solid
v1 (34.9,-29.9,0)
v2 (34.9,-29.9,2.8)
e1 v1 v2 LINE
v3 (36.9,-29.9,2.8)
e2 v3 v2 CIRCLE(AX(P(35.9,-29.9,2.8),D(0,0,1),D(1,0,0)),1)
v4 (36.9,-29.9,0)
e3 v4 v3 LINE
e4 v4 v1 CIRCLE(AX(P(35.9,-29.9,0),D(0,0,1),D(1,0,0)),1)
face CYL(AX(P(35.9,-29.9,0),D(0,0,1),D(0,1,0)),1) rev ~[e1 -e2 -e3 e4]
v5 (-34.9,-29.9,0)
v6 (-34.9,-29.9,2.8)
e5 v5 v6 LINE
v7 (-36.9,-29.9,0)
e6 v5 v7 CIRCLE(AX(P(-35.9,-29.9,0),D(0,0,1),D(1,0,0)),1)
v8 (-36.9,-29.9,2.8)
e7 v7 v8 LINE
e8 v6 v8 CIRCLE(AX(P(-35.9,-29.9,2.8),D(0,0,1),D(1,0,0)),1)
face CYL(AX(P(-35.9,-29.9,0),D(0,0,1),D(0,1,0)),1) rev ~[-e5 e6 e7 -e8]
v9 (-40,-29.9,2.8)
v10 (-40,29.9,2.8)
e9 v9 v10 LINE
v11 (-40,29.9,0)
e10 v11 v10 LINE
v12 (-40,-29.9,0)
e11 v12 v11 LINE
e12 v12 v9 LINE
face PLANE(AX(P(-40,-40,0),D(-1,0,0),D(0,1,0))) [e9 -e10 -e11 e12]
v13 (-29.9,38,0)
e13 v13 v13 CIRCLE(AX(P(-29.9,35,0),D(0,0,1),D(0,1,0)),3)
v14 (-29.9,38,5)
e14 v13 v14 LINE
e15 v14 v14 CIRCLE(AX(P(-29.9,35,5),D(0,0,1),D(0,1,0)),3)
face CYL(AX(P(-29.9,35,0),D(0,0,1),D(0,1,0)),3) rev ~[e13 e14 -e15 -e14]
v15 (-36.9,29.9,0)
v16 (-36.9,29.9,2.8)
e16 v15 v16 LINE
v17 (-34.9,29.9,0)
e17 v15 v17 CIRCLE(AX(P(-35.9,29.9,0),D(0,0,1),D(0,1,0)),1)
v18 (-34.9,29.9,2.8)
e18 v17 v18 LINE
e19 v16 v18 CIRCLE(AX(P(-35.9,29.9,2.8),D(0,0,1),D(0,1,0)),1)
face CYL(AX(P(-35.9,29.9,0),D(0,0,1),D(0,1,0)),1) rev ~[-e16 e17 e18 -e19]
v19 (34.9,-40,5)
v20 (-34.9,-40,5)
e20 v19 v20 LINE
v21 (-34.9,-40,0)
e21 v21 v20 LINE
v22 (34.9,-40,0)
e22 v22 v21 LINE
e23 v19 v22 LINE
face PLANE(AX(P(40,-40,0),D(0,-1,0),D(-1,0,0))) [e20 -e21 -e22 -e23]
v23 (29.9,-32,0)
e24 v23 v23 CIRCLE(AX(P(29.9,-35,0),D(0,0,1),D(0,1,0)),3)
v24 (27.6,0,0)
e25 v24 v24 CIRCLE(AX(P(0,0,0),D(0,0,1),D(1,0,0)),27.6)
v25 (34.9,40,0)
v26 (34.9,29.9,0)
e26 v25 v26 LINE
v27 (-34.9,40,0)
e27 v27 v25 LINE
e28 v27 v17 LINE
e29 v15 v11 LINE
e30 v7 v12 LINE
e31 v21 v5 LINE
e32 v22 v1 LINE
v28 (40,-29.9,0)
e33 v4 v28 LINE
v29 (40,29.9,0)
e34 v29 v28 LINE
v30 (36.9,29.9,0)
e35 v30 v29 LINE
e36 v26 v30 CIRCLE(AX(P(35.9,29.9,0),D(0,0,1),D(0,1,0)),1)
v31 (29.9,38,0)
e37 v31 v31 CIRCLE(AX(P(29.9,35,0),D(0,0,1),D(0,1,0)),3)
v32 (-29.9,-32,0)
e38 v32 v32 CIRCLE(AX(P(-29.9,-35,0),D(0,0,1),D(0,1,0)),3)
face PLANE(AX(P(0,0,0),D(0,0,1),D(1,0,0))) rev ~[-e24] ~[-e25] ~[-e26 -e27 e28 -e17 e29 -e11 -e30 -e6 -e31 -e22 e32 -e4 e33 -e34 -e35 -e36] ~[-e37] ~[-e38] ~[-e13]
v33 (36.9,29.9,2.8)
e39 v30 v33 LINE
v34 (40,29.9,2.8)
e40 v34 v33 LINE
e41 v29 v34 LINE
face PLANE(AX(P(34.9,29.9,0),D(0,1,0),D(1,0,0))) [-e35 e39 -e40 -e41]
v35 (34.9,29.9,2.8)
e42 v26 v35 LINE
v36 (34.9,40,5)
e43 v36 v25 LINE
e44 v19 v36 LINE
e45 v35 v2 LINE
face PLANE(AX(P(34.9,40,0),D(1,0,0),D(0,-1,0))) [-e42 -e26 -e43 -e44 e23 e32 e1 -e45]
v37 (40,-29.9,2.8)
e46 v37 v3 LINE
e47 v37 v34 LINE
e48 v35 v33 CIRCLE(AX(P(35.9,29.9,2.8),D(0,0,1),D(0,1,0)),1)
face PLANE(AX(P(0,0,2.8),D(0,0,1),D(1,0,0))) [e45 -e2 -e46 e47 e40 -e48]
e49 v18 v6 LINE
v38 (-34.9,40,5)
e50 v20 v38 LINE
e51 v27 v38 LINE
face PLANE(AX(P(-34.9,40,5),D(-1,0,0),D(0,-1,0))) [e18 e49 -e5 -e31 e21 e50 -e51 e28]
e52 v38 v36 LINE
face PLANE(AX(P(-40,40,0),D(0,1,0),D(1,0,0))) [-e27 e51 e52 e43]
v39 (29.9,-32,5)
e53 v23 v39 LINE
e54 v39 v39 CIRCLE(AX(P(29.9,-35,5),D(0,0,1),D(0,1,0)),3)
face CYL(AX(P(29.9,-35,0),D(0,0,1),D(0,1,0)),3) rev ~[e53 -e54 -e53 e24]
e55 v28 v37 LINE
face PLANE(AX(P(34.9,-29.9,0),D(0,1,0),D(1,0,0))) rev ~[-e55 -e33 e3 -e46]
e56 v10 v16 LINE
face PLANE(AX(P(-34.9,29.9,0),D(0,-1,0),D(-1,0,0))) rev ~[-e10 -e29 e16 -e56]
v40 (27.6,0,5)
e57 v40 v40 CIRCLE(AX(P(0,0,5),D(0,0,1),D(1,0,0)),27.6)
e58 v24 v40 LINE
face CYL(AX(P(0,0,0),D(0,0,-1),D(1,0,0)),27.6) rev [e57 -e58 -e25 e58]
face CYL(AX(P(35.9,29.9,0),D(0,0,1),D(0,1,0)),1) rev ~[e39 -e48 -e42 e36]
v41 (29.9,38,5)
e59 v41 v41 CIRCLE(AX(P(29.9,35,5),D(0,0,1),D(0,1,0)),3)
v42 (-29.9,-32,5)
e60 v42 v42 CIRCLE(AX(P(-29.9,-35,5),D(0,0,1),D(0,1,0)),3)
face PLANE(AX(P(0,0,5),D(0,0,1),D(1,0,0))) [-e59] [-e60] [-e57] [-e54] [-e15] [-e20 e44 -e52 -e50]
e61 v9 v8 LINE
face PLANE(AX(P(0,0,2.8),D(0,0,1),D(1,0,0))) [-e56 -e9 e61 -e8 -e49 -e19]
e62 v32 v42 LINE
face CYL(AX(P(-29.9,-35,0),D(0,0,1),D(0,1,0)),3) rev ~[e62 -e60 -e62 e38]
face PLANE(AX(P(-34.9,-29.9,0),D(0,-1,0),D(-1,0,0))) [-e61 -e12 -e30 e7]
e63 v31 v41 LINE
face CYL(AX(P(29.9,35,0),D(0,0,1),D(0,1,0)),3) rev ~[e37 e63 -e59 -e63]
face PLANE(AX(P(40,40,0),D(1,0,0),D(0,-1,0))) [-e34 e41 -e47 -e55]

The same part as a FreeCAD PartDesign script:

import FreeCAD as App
import Part
import Sketcher

V = App.Vector


def add_polygon(sketch, points):
    """Adds a closed chain of lines whose ends are joined by coincident constraints."""
    first, n = sketch.GeometryCount, len(points)
    for a, b in zip(points, points[1:] + points[:1]):
        sketch.addGeometry(Part.LineSegment(App.Vector(*a, 0), App.Vector(*b, 0)), False)
    for i in range(n):
        sketch.addConstraint(Sketcher.Constraint("Coincident", first + i, 2, first + (i + 1) % n, 1))

doc = App.newDocument("Part")
body = doc.addObject("PartDesign::Body", "Body")

sketch1 = body.newObject("Sketcher::SketchObject", "Sketch")
sketch1.AttachmentSupport = (doc.getObject("XY_Plane"), [""])
sketch1.MapMode = "FlatFace"
add_polygon(sketch1, [(40, 40), (-40, 40), (-40, -40), (40, -40)])
sketch1.addGeometry(Part.Circle(V(0, 0, 0), V(0, 0, 1), 28), False)
sketch1.addConstraint(Sketcher.Constraint("Horizontal", 0))
sketch1.addConstraint(Sketcher.Constraint("Vertical", 1))
sketch1.addConstraint(Sketcher.Constraint("Horizontal", 2))
sketch1.addConstraint(Sketcher.Constraint("Vertical", 3))
sketch1.addConstraint(Sketcher.Constraint("Coincident", 4, 3, -1, 1))
sketch1.addConstraint(Sketcher.Constraint("Symmetric", 0, 2, 2, 2, -1, 1))
sketch1.addConstraint(Sketcher.Constraint("Equal", 2, 1))
sketch1.addConstraint(Sketcher.Constraint("Diameter", 4, 55.2))
sketch1.addConstraint(Sketcher.Constraint("DistanceX", 0, 2, 0, 1, 80.0))
pad1 = body.newObject("PartDesign::Pad", "Pad")
pad1.Profile = sketch1
pad1.Length = 5

sketch2 = body.newObject("Sketcher::SketchObject", "Sketch001")
sketch2.AttachmentSupport = (doc.getObject("XY_Plane"), [""])
sketch2.MapMode = "FlatFace"
sketch2.AttachmentOffset = App.Placement(V(0, 0, 5), App.Rotation())
add_polygon(sketch2, [(-40, -40), (-35, -40), (-35, 40), (-40, 40)])
add_polygon(sketch2, [(35, -40), (40, -40), (40, 40), (35, 40)])
sketch2.addConstraint(Sketcher.Constraint("Horizontal", 0))
sketch2.addConstraint(Sketcher.Constraint("Vertical", 1))
sketch2.addConstraint(Sketcher.Constraint("Horizontal", 2))
sketch2.addConstraint(Sketcher.Constraint("Vertical", 3))
sketch2.addConstraint(Sketcher.Constraint("Horizontal", 4))
sketch2.addConstraint(Sketcher.Constraint("Vertical", 5))
sketch2.addConstraint(Sketcher.Constraint("Horizontal", 6))
sketch2.addConstraint(Sketcher.Constraint("Vertical", 7))
sketch2.addConstraint(Sketcher.Constraint("Symmetric", 2, 2, 4, 2, -1, 1))
sketch2.addConstraint(Sketcher.Constraint("Symmetric", 0, 2, 6, 2, -1, 1))
sketch2.addConstraint(Sketcher.Constraint("Horizontal", 3, 2, 4, 2))
sketch2.addConstraint(Sketcher.Constraint("DistanceX", 0, 1, 0, 2, 5.1))
sketch2.addConstraint(Sketcher.Constraint("DistanceY", 1, 1, 1, 2, 80.0))
sketch2.addConstraint(Sketcher.Constraint("DistanceX", 2, 2, -1, 1, 40.0))
pocket1 = body.newObject("PartDesign::Pocket", "Pocket")
pocket1.Profile = sketch2
pocket1.Length = 2.2

sketch3 = body.newObject("Sketcher::SketchObject", "Sketch002")
sketch3.AttachmentSupport = (doc.getObject("XY_Plane"), [""])
sketch3.MapMode = "FlatFace"
add_polygon(sketch3, [(35, 40), (40, 40), (40, 30), (35, 30)])
add_polygon(sketch3, [(40, -30), (40, -40), (35, -40), (35, -30)])
add_polygon(sketch3, [(-40, 30), (-40, 40), (-35, 40), (-35, 30)])
add_polygon(sketch3, [(-35, -40), (-40, -40), (-40, -30), (-35, -30)])
sketch3.addConstraint(Sketcher.Constraint("Horizontal", 0))
sketch3.addConstraint(Sketcher.Constraint("Vertical", 1))
sketch3.addConstraint(Sketcher.Constraint("Horizontal", 2))
sketch3.addConstraint(Sketcher.Constraint("Vertical", 3))
sketch3.addConstraint(Sketcher.Constraint("Vertical", 4))
sketch3.addConstraint(Sketcher.Constraint("Horizontal", 5))
sketch3.addConstraint(Sketcher.Constraint("Vertical", 6))
sketch3.addConstraint(Sketcher.Constraint("Horizontal", 7))
sketch3.addConstraint(Sketcher.Constraint("Vertical", 8))
sketch3.addConstraint(Sketcher.Constraint("Horizontal", 9))
sketch3.addConstraint(Sketcher.Constraint("Vertical", 10))
sketch3.addConstraint(Sketcher.Constraint("Horizontal", 11))
sketch3.addConstraint(Sketcher.Constraint("Horizontal", 12))
sketch3.addConstraint(Sketcher.Constraint("Vertical", 13))
sketch3.addConstraint(Sketcher.Constraint("Horizontal", 14))
sketch3.addConstraint(Sketcher.Constraint("Vertical", 15))
sketch3.addConstraint(Sketcher.Constraint("Symmetric", 4, 2, 8, 2, -1, 1))
sketch3.addConstraint(Sketcher.Constraint("Symmetric", 6, 2, 10, 2, -1, 1))
sketch3.addConstraint(Sketcher.Constraint("Symmetric", 0, 2, 12, 2, -1, 1))
sketch3.addConstraint(Sketcher.Constraint("Symmetric", 2, 2, 14, 2, -1, 1))
sketch3.addConstraint(Sketcher.Constraint("Symmetric", 0, 2, 8, 2, -2))
sketch3.addConstraint(Sketcher.Constraint("Symmetric", 2, 2, 10, 2, -2))
sketch3.addConstraint(Sketcher.Constraint("DistanceX", 0, 1, 0, 2, 5.1))
sketch3.addConstraint(Sketcher.Constraint("DistanceY", 1, 2, 1, 1, 10.1))
sketch3.addConstraint(Sketcher.Constraint("DistanceX", -1, 1, 0, 2, 40.0))
sketch3.addConstraint(Sketcher.Constraint("DistanceY", -1, 1, 0, 2, 40.0))
pocket2 = body.newObject("PartDesign::Pocket", "Pocket001")
pocket2.Profile = sketch3
pocket2.Type = "ThroughAll"
pocket2.Reversed = True

sketch4 = body.newObject("Sketcher::SketchObject", "Sketch003")
sketch4.AttachmentSupport = (doc.getObject("XY_Plane"), [""])
sketch4.MapMode = "FlatFace"
sketch4.addGeometry(Part.Circle(V(35.9, 29.9, 0), V(0, 0, 1), 1), False)
sketch4.addGeometry(Part.Circle(V(35.9, -29.9, 0), V(0, 0, 1), 1), False)
sketch4.addGeometry(Part.Circle(V(-35.9, -29.9, 0), V(0, 0, 1), 1), False)
sketch4.addGeometry(Part.Circle(V(-35.9, 29.9, 0), V(0, 0, 1), 1), False)
sketch4.addConstraint(Sketcher.Constraint("Equal", 0, 1))
sketch4.addConstraint(Sketcher.Constraint("Equal", 1, 2))
sketch4.addConstraint(Sketcher.Constraint("Equal", 2, 3))
sketch4.addConstraint(Sketcher.Constraint("Symmetric", 0, 3, 2, 3, -1, 1))
sketch4.addConstraint(Sketcher.Constraint("Symmetric", 1, 3, 3, 3, -1, 1))
sketch4.addConstraint(Sketcher.Constraint("Symmetric", 1, 3, 2, 3, -2))
sketch4.addConstraint(Sketcher.Constraint("Diameter", 0, 2.0))
sketch4.addConstraint(Sketcher.Constraint("DistanceX", -1, 1, 0, 3, 35.9))
sketch4.addConstraint(Sketcher.Constraint("DistanceY", -1, 1, 0, 3, 29.9))
doc.recompute()
hole = body.newObject("PartDesign::Hole", "Hole")
hole.Profile = sketch4
hole.ThreadType = "None"
hole.Diameter = 2
hole.DepthType = "ThroughAll"
hole.Reversed = True

sketch5 = body.newObject("Sketcher::SketchObject", "Sketch004")
sketch5.AttachmentSupport = (doc.getObject("XY_Plane"), [""])
sketch5.MapMode = "FlatFace"
sketch5.addGeometry(Part.Circle(V(29.9, 35, 0), V(0, 0, 1), 3), False)
sketch5.addGeometry(Part.Circle(V(29.9, -35, 0), V(0, 0, 1), 3), False)
sketch5.addGeometry(Part.Circle(V(-29.9, -35, 0), V(0, 0, 1), 3), False)
sketch5.addGeometry(Part.Circle(V(-29.9, 35, 0), V(0, 0, 1), 3), False)
sketch5.addConstraint(Sketcher.Constraint("Equal", 0, 1))
sketch5.addConstraint(Sketcher.Constraint("Equal", 1, 2))
sketch5.addConstraint(Sketcher.Constraint("Equal", 2, 3))
sketch5.addConstraint(Sketcher.Constraint("Symmetric", 0, 3, 2, 3, -1, 1))
sketch5.addConstraint(Sketcher.Constraint("Symmetric", 1, 3, 3, 3, -1, 1))
sketch5.addConstraint(Sketcher.Constraint("Symmetric", 1, 3, 2, 3, -2))
sketch5.addConstraint(Sketcher.Constraint("Diameter", 0, 6.0))
sketch5.addConstraint(Sketcher.Constraint("DistanceY", -1, 1, 0, 3, 35.0))
sketch5.addConstraint(Sketcher.Constraint("DistanceX", -1, 1, 0, 3, 29.9))
doc.recompute()
hole2 = body.newObject("PartDesign::Hole", "Hole001")
hole2.Profile = sketch5
hole2.ThreadType = "None"
hole2.Diameter = 6
hole2.DepthType = "ThroughAll"
hole2.Reversed = True

doc.recompute()
